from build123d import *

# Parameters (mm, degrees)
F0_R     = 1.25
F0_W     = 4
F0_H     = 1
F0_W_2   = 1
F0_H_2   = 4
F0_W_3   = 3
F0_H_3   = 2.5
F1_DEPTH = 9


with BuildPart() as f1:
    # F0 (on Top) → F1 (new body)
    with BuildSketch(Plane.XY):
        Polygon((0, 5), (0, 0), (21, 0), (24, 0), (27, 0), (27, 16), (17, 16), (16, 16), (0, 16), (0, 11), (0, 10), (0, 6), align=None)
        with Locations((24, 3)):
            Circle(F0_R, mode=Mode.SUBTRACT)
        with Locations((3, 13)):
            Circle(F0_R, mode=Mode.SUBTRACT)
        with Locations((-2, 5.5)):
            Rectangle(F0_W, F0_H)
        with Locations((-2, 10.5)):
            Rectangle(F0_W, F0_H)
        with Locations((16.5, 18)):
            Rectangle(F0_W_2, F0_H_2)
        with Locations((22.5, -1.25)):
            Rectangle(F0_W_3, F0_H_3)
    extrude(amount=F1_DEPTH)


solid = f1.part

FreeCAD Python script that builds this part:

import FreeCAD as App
import Part
import Sketcher

doc = App.newDocument("Part")
body = doc.addObject("PartDesign::Body", "Body")

sketch1 = doc.addObject("Sketcher::SketchObject", "Sketch")
body.addObject(sketch1)
sketch1.AttachmentSupport = (doc.XY_Plane, [""])
sketch1.MapMode = "FlatFace"
sketch1.addGeometry([
    Part.LineSegment(App.Vector(0, 0, 0), App.Vector(21, 0, 0)),
    Part.LineSegment(App.Vector(21, 0, 0), App.Vector(21, -2.5, 0)),
    Part.LineSegment(App.Vector(21, -2.5, 0), App.Vector(24, -2.5, 0)),
    Part.LineSegment(App.Vector(24, -2.5, 0), App.Vector(24, 0, 0)),
    Part.LineSegment(App.Vector(24, 0, 0), App.Vector(27, 0, 0)),
    Part.LineSegment(App.Vector(27, 0, 0), App.Vector(27, 16, 0)),
    Part.LineSegment(App.Vector(27, 16, 0), App.Vector(17, 16, 0)),
    Part.LineSegment(App.Vector(17, 16, 0), App.Vector(17, 20, 0)),
    Part.LineSegment(App.Vector(17, 20, 0), App.Vector(16, 20, 0)),
    Part.LineSegment(App.Vector(16, 20, 0), App.Vector(16, 16, 0)),
    Part.LineSegment(App.Vector(16, 16, 0), App.Vector(0, 16, 0)),
    Part.LineSegment(App.Vector(0, 16, 0), App.Vector(0, 11, 0)),
    Part.LineSegment(App.Vector(0, 11, 0), App.Vector(-4, 11, 0)),
    Part.LineSegment(App.Vector(-4, 11, 0), App.Vector(-4, 10, 0)),
    Part.LineSegment(App.Vector(-4, 10, 0), App.Vector(0, 10, 0)),
    Part.LineSegment(App.Vector(0, 10, 0), App.Vector(0, 6, 0)),
    Part.LineSegment(App.Vector(0, 6, 0), App.Vector(-4, 6, 0)),
    Part.LineSegment(App.Vector(-4, 6, 0), App.Vector(-4, 5, 0)),
    Part.LineSegment(App.Vector(-4, 5, 0), App.Vector(0, 5, 0)),
    Part.LineSegment(App.Vector(0, 5, 0), App.Vector(0, 0, 0)),
    Part.Circle(App.Vector(24, 3, 0), App.Vector(0, 0, 1), 1.25),
    Part.Circle(App.Vector(3, 13, 0), App.Vector(0, 0, 1), 1.25),
], False)
sketch1.addConstraint([
    Sketcher.Constraint("Coincident", 0, 2, 1, 1),
    Sketcher.Constraint("Coincident", 1, 2, 2, 1),
    Sketcher.Constraint("Coincident", 2, 2, 3, 1),
    Sketcher.Constraint("Coincident", 3, 2, 4, 1),
    Sketcher.Constraint("Coincident", 4, 2, 5, 1),
    Sketcher.Constraint("Coincident", 5, 2, 6, 1),
    Sketcher.Constraint("Coincident", 6, 2, 7, 1),
    Sketcher.Constraint("Coincident", 7, 2, 8, 1),
    Sketcher.Constraint("Coincident", 8, 2, 9, 1),
    Sketcher.Constraint("Coincident", 9, 2, 10, 1),
    Sketcher.Constraint("Coincident", 10, 2, 11, 1),
    Sketcher.Constraint("Coincident", 11, 2, 12, 1),
    Sketcher.Constraint("Coincident", 12, 2, 13, 1),
    Sketcher.Constraint("Coincident", 13, 2, 14, 1),
    Sketcher.Constraint("Coincident", 14, 2, 15, 1),
    Sketcher.Constraint("Coincident", 15, 2, 16, 1),
    Sketcher.Constraint("Coincident", 16, 2, 17, 1),
    Sketcher.Constraint("Coincident", 17, 2, 18, 1),
    Sketcher.Constraint("Coincident", 18, 2, 19, 1),
    Sketcher.Constraint("Coincident", 19, 2, 0, 1),
    Sketcher.Constraint("Horizontal", 0),
    Sketcher.Constraint("Vertical", 1),
    Sketcher.Constraint("Horizontal", 2),
    Sketcher.Constraint("Vertical", 3),
    Sketcher.Constraint("Horizontal", 4),
    Sketcher.Constraint("Vertical", 5),
    Sketcher.Constraint("Horizontal", 6),
    Sketcher.Constraint("Vertical", 7),
    Sketcher.Constraint("Horizontal", 8),
    Sketcher.Constraint("Vertical", 9),
    Sketcher.Constraint("Horizontal", 10),
    Sketcher.Constraint("Vertical", 11),
    Sketcher.Constraint("Horizontal", 12),
    Sketcher.Constraint("Vertical", 13),
    Sketcher.Constraint("Horizontal", 14),
    Sketcher.Constraint("Vertical", 15),
    Sketcher.Constraint("Horizontal", 16),
    Sketcher.Constraint("Vertical", 17),
    Sketcher.Constraint("Horizontal", 18),
    Sketcher.Constraint("Vertical", 19),
    Sketcher.Constraint("Coincident", 19, 2, -1, 1),
    Sketcher.Constraint("Equal", 20, 21),
    Sketcher.Constraint("PointOnObject", 3, 2, -1),
    Sketcher.Constraint("PointOnObject", 10, 2, -2),
    Sketcher.Constraint("PointOnObject", 14, 2, -2),
    Sketcher.Constraint("Horizontal", 6, 2, 9, 2),
    Sketcher.Constraint("Vertical", 20, 3, 2, 2),
    Sketcher.Constraint("Vertical", 13, 2, 16, 2),
    Sketcher.Constraint("Equal", 2, 4),
    Sketcher.Constraint("Equal", 10, 5),
    Sketcher.Constraint("Equal", 18, 7),
    Sketcher.Constraint("Equal", 8, 13),
    Sketcher.Constraint("Equal", 9, 15),
    Sketcher.Constraint("Equal", 13, 17),
    Sketcher.Constraint("Equal", 11, 19),
    Sketcher.Constraint("Diameter", 20, 2.5),
    Sketcher.Constraint("DistanceX", 0, 1, 0, 2, 21.0),
    Sketcher.Constraint("DistanceX", 2, 1, 2, 2, 3.0),
    Sketcher.Constraint("DistanceX", 6, 2, 6, 1, 10.0),
    Sketcher.Constraint("DistanceX", 8, 2, 8, 1, 1.0),
    Sketcher.Constraint("DistanceX", 12, 2, 12, 1, 4.0),
    Sketcher.Constraint("DistanceY", 1, 2, 1, 1, 2.5),
    Sketcher.Constraint("DistanceY", -1, 1, 20, 3, 3.0),
    Sketcher.Constraint("DistanceX", -1, 1, 21, 3, 3.0),
    Sketcher.Constraint("DistanceY", -1, 1, 21, 3, 13.0),
])
pad1 = doc.addObject("PartDesign::Pad", "Pad")
body.addObject(pad1)
pad1.Profile = sketch1
pad1.Length = 9

doc.recompute()
